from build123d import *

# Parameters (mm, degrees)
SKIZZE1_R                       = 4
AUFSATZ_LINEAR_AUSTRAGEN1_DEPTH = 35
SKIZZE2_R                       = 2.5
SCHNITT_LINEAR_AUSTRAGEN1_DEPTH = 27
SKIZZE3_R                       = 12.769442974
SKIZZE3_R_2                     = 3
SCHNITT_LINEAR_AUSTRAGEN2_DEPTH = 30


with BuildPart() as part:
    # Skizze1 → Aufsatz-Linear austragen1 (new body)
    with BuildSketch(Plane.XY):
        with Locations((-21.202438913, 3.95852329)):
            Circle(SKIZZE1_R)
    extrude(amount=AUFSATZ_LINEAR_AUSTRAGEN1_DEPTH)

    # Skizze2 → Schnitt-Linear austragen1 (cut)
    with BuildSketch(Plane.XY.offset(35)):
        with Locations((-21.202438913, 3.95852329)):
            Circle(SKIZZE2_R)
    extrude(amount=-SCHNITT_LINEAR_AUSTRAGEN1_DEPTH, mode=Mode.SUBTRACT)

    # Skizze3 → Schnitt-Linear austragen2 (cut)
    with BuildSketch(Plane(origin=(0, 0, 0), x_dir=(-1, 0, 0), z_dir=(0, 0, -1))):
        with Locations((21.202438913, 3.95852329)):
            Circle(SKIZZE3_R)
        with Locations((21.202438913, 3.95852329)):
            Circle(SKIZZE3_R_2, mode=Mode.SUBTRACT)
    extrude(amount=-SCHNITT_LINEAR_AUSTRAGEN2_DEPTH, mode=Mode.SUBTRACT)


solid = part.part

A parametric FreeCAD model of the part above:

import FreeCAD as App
import Part
import Sketcher

doc = App.newDocument("Part")
body = doc.addObject("PartDesign::Body", "Body")

# Sketch on XY plane
sketch1 = body.newObject("Sketcher::SketchObject", "Sketch")
sketch1.AttachmentSupport = (doc.getObject("XY_Plane"), [""])
sketch1.MapMode = "FlatFace"
sketch1.addGeometry(Part.Circle(App.Vector(-21.2, 4, 0), App.Vector(0, 0, 1), 4), False)
sketch1.addConstraint([
    Sketcher.Constraint("Diameter", 0, 8.0),
    Sketcher.Constraint("DistanceX", 0, 3, -1, 1, 21.202439),
    Sketcher.Constraint("DistanceY", -1, 1, 0, 3, 3.958523),
])
pad1 = body.newObject("PartDesign::Pad", "Pad")
pad1.Profile = sketch1
pad1.Length = 35

# Sketch on XY plane
sketch2 = body.newObject("Sketcher::SketchObject", "Sketch001")
sketch2.AttachmentSupport = (doc.getObject("XY_Plane"), [""])
sketch2.MapMode = "FlatFace"
sketch2.AttachmentOffset = App.Placement(App.Vector(0, 0, 35), App.Rotation())
sketch2.addGeometry(Part.Circle(App.Vector(-21.2, 4, 0), App.Vector(0, 0, 1), 2.5), False)
sketch2.addConstraint([
    Sketcher.Constraint("Diameter", 0, 5.0),
    Sketcher.Constraint("DistanceX", 0, 3, -1, 1, 21.202439),
    Sketcher.Constraint("DistanceY", -1, 1, 0, 3, 3.958523),
])
pocket1 = body.newObject("PartDesign::Pocket", "Pocket")
pocket1.Profile = sketch2
pocket1.Length = 27

# Sketch on XY plane
sketch3 = body.newObject("Sketcher::SketchObject", "Sketch002")
sketch3.AttachmentSupport = (doc.getObject("XY_Plane"), [""])
sketch3.MapMode = "FlatFace"
sketch3.addGeometry([
    Part.Circle(App.Vector(-21.2, 4, 0), App.Vector(0, 0, 1), 12.8),
    Part.Circle(App.Vector(-21.2, 4, 0), App.Vector(0, 0, 1), 3),
], False)
sketch3.addConstraint([
    Sketcher.Constraint("Coincident", 1, 3, 0, 3),
    Sketcher.Constraint("Diameter", 1, 6.0),
    Sketcher.Constraint("Diameter", 0, 25.538886),
    Sketcher.Constraint("DistanceX", 0, 3, -1, 1, 21.202439),
    Sketcher.Constraint("DistanceY", -1, 1, 0, 3, 3.958523),
])
pocket2 = body.newObject("PartDesign::Pocket", "Pocket001")
pocket2.Profile = sketch3
pocket2.Length = 30
pocket2.Reversed = True

doc.recompute()
